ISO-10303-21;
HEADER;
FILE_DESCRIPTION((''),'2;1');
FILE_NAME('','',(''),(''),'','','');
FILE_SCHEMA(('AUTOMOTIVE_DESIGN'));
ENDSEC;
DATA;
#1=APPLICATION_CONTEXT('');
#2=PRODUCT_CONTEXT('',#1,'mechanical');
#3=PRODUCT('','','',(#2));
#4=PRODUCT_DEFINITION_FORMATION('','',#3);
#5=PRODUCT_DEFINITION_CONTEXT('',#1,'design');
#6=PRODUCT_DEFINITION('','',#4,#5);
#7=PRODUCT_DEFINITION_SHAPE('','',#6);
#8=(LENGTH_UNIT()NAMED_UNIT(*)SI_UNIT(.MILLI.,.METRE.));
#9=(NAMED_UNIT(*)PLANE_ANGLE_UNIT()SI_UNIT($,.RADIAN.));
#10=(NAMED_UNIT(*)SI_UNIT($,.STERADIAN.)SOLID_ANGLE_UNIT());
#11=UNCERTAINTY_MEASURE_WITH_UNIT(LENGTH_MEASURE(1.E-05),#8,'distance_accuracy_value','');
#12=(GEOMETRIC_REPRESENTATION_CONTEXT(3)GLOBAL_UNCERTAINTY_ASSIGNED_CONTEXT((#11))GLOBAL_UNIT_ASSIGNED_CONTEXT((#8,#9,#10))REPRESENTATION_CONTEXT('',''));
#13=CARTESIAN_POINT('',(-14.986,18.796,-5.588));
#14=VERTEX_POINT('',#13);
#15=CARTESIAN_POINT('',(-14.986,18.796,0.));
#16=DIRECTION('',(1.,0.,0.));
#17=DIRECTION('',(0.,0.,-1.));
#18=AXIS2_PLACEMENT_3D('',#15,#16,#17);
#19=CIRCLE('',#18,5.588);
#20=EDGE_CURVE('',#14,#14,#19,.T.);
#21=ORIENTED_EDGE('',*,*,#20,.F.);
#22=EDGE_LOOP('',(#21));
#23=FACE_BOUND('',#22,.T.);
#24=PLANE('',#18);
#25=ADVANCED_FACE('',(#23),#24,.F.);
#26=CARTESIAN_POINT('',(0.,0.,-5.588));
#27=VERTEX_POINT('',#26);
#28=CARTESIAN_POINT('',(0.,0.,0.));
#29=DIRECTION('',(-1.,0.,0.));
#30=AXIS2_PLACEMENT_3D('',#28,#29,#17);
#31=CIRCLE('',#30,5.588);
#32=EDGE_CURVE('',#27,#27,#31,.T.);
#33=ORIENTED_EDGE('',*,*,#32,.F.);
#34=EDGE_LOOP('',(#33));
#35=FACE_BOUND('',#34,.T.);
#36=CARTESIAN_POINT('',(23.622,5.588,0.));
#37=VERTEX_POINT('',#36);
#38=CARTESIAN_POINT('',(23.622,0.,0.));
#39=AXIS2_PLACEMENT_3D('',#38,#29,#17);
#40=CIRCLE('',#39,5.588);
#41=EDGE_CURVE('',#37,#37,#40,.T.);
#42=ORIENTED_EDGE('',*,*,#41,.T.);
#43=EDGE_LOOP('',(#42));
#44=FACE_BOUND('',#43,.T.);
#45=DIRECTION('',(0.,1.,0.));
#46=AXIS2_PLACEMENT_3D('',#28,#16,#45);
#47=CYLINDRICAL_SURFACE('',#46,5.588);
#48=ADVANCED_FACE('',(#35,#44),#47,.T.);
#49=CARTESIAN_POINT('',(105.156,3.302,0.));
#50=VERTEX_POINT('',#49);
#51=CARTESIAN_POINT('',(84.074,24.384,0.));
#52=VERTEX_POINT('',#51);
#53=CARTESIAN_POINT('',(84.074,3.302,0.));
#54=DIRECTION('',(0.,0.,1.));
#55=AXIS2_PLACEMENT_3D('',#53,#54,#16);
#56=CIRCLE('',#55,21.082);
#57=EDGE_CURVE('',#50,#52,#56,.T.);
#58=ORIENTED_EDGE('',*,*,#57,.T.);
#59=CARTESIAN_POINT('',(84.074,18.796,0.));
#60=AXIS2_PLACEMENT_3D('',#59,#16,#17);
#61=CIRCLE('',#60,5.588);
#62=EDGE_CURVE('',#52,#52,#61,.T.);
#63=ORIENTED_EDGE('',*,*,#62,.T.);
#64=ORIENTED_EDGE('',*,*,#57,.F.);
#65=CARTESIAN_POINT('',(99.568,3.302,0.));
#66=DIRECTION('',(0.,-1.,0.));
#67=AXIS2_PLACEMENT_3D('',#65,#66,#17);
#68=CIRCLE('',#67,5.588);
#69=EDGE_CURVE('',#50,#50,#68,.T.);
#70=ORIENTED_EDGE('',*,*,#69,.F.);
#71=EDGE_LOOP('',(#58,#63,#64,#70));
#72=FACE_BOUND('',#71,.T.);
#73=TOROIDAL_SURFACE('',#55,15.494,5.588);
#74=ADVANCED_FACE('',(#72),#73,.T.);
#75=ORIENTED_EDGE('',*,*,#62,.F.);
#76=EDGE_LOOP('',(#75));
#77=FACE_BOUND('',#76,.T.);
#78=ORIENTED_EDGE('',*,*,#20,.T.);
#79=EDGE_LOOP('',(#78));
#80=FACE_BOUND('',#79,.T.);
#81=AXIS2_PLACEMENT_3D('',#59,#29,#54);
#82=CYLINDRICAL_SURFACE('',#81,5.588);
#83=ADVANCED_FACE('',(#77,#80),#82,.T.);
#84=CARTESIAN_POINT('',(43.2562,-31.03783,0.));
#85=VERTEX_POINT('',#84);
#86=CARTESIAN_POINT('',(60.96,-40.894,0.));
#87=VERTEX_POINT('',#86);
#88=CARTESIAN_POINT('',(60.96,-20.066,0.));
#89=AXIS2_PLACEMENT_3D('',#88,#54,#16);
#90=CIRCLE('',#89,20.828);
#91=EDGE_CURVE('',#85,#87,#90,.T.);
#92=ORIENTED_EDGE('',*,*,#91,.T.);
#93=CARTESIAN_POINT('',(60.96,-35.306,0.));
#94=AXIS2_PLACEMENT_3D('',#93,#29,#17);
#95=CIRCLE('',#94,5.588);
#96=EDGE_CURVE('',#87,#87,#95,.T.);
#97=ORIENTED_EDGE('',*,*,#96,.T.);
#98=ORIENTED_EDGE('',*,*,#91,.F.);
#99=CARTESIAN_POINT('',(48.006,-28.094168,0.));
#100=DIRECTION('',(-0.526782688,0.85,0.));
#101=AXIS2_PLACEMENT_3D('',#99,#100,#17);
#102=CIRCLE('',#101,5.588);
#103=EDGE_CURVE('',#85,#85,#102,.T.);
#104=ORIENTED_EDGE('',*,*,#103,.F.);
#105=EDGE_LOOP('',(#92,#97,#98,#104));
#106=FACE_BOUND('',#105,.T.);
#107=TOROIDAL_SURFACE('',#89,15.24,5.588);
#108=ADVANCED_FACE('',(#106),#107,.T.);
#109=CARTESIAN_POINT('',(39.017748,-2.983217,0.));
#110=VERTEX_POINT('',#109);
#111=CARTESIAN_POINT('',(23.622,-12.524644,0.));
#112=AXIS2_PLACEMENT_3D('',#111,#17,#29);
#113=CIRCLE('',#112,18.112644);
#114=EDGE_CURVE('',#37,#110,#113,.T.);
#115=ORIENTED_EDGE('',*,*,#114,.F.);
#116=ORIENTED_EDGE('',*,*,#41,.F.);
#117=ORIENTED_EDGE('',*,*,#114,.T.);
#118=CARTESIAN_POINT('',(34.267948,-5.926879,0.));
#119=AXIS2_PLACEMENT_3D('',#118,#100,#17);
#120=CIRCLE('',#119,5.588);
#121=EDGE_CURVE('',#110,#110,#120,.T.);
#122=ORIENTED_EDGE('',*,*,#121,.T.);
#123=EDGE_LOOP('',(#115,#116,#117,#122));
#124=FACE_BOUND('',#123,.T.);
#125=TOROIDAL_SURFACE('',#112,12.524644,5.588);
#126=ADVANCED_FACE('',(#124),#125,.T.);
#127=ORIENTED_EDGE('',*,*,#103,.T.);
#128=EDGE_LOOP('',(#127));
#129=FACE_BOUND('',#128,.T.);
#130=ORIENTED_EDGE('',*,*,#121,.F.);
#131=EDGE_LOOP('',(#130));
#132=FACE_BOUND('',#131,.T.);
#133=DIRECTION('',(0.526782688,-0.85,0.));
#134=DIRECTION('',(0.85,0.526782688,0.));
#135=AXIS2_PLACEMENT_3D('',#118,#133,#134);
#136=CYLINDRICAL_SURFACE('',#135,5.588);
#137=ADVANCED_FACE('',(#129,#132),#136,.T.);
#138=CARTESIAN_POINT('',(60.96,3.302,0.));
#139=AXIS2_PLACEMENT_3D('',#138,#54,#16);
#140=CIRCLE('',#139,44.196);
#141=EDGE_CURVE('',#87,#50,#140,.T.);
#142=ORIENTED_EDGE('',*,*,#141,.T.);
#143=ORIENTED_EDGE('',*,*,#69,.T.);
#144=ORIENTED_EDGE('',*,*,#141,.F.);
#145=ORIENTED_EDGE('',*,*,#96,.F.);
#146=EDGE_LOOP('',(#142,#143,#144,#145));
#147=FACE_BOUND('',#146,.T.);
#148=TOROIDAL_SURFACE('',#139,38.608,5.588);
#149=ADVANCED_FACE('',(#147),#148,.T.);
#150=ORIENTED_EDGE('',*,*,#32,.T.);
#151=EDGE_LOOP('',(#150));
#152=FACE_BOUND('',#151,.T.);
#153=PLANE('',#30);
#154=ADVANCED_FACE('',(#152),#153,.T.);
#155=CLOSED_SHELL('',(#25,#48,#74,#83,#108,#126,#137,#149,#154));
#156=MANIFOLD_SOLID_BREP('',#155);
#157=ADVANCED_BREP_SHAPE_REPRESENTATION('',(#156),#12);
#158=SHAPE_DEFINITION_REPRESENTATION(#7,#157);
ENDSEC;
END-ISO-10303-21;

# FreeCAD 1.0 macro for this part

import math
import FreeCAD as App
import Part
import Sketcher
Q = App.Units.Quantity

doc = App.newDocument("Part")
body = doc.addObject("PartDesign::Body", "Body")

# Sketch on YZ plane
sketch1 = doc.addObject("Sketcher::SketchObject", "Sketch")
body.addObject(sketch1)
sketch1.AttachmentSupport = (doc.YZ_Plane, [""])
sketch1.MapMode = "FlatFace"
sketch1.addGeometry(Part.Circle(App.Vector(0, 0, 0), App.Vector(0, 0, 1), 6), False)
sketch1.addConstraint([
    Sketcher.Constraint("Coincident", 0, 3, -1, 1),
    Sketcher.Constraint("Diameter", 0, Q("0.44 in")),
])

# Sketch on XY plane
sketch2 = doc.addObject("Sketcher::SketchObject", "Sketch001")
body.addObject(sketch2)
sketch2.AttachmentSupport = (doc.XY_Plane, [""])
sketch2.MapMode = "FlatFace"
sketch2.addGeometry([
    Part.LineSegment(App.Vector(0, 0, 0), App.Vector(24, 0, 0)),  # 0
    Part.ArcOfCircle(Part.Circle(App.Vector(24, -13, 0), App.Vector(0, 0, 1), 13), math.radians(32), math.radians(90)),  # 1
    Part.LineSegment(App.Vector(34, -6, 0), App.Vector(48, -28, 0)),  # 2
    Part.ArcOfCircle(Part.Circle(App.Vector(61, -20, 0), App.Vector(0, 0, 1), 15), math.radians(-148), math.radians(-90)),  # 3
    Part.ArcOfCircle(Part.Circle(App.Vector(61, 3, 0), App.Vector(0, 0, 1), 39), math.radians(-90), math.radians(0)),  # 4
    Part.ArcOfCircle(Part.Circle(App.Vector(84, 3, 0), App.Vector(0, 0, 1), 15), math.radians(0), math.radians(90)),  # 5
    Part.LineSegment(App.Vector(84, 19, 0), App.Vector(-15, 19, 0)),  # 6
], False)
sketch2.addConstraint([
    Sketcher.Constraint("Tangent", 0, 2, 1, 2),
    Sketcher.Constraint("Tangent", 1, 1, 2, 1),
    Sketcher.Constraint("Tangent", 2, 2, 3, 1),
    Sketcher.Constraint("Tangent", 3, 2, 4, 1),
    Sketcher.Constraint("Tangent", 4, 2, 5, 1),
    Sketcher.Constraint("Tangent", 5, 2, 6, 1),
    Sketcher.Constraint("Horizontal", 0),
    Sketcher.Constraint("Horizontal", 6),
    Sketcher.Constraint("Coincident", 0, 1, -1, 1),
    Sketcher.Constraint("Horizontal", 4, 3, 5, 3),
    Sketcher.Constraint("Vertical", 3, 3, 4, 3),
    Sketcher.Constraint("Radius", 3, Q("0.6 in")),
    Sketcher.Constraint("Radius", 4, Q("1.52 in")),
    Sketcher.Constraint("Radius", 5, Q("0.61 in")),
    Sketcher.Constraint("DistanceX", 6, 2, 6, 1, Q("3.9 in")),
    Sketcher.Constraint("DistanceX", 0, 1, 0, 2, Q("0.93 in")),
    Sketcher.Constraint("DistanceX", -1, 1, 3, 3, Q("2.4 in")),
    Sketcher.Constraint("DistanceY", 3, 3, -1, 1, Q("0.79 in")),
    Sketcher.Constraint("DistanceX", -1, 1, 2, 2, Q("1.89 in")),
])
doc.recompute()

additivepipe = doc.addObject("PartDesign::AdditivePipe", "AdditivePipe")
body.addObject(additivepipe)
additivepipe.Profile = sketch1
additivepipe.Spine = (sketch2, ["Edge1", "Edge2", "Edge3", "Edge4", "Edge5", "Edge6", "Edge7"])

doc.recompute()
